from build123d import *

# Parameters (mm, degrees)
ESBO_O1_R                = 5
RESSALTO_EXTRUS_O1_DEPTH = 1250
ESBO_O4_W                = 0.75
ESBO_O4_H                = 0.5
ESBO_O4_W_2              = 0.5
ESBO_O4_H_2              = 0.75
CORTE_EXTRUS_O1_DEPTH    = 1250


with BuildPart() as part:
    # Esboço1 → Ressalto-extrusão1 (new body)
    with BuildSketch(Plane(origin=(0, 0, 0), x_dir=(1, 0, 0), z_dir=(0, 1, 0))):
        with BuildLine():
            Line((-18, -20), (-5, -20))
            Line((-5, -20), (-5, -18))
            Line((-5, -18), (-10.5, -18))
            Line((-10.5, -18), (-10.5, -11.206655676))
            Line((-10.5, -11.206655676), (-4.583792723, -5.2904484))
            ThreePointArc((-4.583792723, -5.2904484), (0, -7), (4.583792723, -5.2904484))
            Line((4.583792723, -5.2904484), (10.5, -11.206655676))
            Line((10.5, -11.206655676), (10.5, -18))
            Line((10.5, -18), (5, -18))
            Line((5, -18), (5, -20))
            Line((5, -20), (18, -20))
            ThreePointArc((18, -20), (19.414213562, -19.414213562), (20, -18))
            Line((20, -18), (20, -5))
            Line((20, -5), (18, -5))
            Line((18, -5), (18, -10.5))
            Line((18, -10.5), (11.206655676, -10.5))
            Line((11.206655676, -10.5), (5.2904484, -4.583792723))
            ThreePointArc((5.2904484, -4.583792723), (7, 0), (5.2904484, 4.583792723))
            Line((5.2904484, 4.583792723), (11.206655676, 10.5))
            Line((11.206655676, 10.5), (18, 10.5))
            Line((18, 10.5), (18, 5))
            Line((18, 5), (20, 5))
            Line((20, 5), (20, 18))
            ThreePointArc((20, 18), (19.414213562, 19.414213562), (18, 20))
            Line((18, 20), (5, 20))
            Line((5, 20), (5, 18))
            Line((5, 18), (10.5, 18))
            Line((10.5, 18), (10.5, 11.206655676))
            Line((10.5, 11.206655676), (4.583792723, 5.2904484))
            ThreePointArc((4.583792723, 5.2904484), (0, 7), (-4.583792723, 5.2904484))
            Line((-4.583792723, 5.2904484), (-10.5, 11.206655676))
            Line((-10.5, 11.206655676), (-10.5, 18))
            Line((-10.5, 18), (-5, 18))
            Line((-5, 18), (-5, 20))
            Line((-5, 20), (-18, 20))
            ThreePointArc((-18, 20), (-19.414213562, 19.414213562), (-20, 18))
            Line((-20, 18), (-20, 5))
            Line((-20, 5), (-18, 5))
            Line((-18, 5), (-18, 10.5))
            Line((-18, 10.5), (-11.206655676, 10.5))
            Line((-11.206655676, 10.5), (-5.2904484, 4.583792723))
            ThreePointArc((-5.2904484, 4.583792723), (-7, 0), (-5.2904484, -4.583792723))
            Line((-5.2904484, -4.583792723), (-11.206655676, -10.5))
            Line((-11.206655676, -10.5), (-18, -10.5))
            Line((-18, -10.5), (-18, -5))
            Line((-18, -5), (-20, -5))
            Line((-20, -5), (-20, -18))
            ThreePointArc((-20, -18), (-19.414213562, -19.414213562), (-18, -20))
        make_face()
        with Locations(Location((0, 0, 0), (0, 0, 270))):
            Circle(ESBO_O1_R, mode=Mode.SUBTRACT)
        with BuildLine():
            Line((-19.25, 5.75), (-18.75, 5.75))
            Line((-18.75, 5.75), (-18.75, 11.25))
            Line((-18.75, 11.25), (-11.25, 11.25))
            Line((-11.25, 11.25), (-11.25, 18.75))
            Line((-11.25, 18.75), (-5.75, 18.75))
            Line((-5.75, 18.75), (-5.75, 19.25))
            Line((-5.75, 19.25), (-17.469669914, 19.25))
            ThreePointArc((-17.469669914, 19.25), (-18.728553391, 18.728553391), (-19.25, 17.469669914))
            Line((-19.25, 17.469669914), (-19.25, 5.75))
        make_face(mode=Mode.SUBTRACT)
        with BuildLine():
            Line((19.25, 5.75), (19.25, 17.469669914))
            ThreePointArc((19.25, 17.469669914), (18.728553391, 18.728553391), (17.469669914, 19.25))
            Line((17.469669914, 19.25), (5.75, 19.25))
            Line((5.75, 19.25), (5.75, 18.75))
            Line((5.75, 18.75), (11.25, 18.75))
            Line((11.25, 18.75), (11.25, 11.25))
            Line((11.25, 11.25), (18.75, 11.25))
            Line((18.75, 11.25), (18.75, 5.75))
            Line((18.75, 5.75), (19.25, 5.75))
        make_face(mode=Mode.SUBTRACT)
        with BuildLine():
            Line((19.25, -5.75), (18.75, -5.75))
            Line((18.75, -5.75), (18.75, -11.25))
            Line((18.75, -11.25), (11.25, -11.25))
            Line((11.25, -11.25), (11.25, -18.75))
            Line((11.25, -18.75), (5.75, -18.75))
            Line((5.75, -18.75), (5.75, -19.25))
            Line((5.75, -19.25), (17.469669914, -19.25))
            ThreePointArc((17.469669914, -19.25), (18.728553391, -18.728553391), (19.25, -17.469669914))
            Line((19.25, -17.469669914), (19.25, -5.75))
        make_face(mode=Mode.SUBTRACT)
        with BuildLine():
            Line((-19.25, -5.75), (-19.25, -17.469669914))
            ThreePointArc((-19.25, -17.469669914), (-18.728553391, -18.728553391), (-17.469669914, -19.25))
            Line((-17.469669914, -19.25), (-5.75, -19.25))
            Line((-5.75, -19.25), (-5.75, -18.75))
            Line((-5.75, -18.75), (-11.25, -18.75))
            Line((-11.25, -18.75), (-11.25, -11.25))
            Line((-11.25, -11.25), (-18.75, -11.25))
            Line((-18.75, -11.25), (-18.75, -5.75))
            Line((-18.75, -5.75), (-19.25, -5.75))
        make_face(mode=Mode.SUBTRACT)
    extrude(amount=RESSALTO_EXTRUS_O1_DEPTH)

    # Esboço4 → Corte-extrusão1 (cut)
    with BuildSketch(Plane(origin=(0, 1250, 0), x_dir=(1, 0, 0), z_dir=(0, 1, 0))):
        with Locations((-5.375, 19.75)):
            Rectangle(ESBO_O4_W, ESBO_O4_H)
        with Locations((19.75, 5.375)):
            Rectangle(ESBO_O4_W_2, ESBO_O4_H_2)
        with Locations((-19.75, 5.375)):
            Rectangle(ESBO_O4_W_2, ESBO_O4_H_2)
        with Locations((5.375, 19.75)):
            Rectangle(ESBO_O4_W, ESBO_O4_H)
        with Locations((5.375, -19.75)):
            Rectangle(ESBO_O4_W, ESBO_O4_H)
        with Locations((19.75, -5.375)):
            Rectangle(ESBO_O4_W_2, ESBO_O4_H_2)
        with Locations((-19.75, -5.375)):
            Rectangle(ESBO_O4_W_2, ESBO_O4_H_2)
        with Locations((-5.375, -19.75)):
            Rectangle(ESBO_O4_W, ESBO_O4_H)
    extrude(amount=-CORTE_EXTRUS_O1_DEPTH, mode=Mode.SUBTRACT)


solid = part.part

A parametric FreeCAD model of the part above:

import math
import FreeCAD as App
import Part
import Sketcher
from FreeCAD import Vector

doc = App.newDocument("Part")
body = doc.addObject("PartDesign::Body", "Body")

sketch1 = body.newObject("Sketcher::SketchObject", "Sketch")
sketch1.AttachmentSupport = (doc.getObject("XZ_Plane"), [""])
sketch1.MapMode = "FlatFace"
sketch1.addGeometry(Part.LineSegment(Vector(-18, 20, 0), Vector(-5, 20, 0)), False)
sketch1.addGeometry(Part.LineSegment(Vector(-5, 20, 0), Vector(-5, 18, 0)), False)
sketch1.addGeometry(Part.LineSegment(Vector(-5, 18, 0), Vector(-10.5, 18, 0)), False)
sketch1.addGeometry(Part.LineSegment(Vector(-10.5, 18, 0), Vector(-10.5, 11.206656, 0)), False)
sketch1.addGeometry(Part.LineSegment(Vector(-10.5, 11.206656, 0), Vector(-4.583793, 5.290448, 0)), False)
sketch1.addGeometry(Part.ArcOfCircle(Part.Circle(Vector(0, 0, 0), Vector(0, 0, 1), 7), math.radians(49.093426), math.radians(130.906574)), False)
sketch1.addGeometry(Part.LineSegment(Vector(4.583793, 5.290448, 0), Vector(10.5, 11.206656, 0)), False)
sketch1.addGeometry(Part.LineSegment(Vector(10.5, 11.206656, 0), Vector(10.5, 18, 0)), False)
sketch1.addGeometry(Part.LineSegment(Vector(10.5, 18, 0), Vector(5, 18, 0)), False)
sketch1.addGeometry(Part.LineSegment(Vector(5, 18, 0), Vector(5, 20, 0)), False)
sketch1.addGeometry(Part.LineSegment(Vector(5, 20, 0), Vector(18, 20, 0)), False)
sketch1.addGeometry(Part.ArcOfCircle(Part.Circle(Vector(18, 18, 0), Vector(0, 0, 1), 2), math.radians(0), math.radians(90)), False)
sketch1.addGeometry(Part.LineSegment(Vector(20, 18, 0), Vector(20, 5, 0)), False)
sketch1.addGeometry(Part.LineSegment(Vector(20, 5, 0), Vector(18, 5, 0)), False)
sketch1.addGeometry(Part.LineSegment(Vector(18, 5, 0), Vector(18, 10.5, 0)), False)
sketch1.addGeometry(Part.LineSegment(Vector(18, 10.5, 0), Vector(11.206656, 10.5, 0)), False)
sketch1.addGeometry(Part.LineSegment(Vector(11.206656, 10.5, 0), Vector(5.290448, 4.583793, 0)), False)
sketch1.addGeometry(Part.ArcOfCircle(Part.Circle(Vector(0, 0, 0), Vector(0, 0, 1), 7), math.radians(-40.906574), math.radians(40.906574)), False)
sketch1.addGeometry(Part.LineSegment(Vector(5.290448, -4.583793, 0), Vector(11.206656, -10.5, 0)), False)
sketch1.addGeometry(Part.LineSegment(Vector(11.206656, -10.5, 0), Vector(18, -10.5, 0)), False)
sketch1.addGeometry(Part.LineSegment(Vector(18, -10.5, 0), Vector(18, -5, 0)), False)
sketch1.addGeometry(Part.LineSegment(Vector(18, -5, 0), Vector(20, -5, 0)), False)
sketch1.addGeometry(Part.LineSegment(Vector(20, -5, 0), Vector(20, -18, 0)), False)
sketch1.addGeometry(Part.ArcOfCircle(Part.Circle(Vector(18, -18, 0), Vector(0, 0, 1), 2), math.radians(-90), math.radians(0)), False)
sketch1.addGeometry(Part.LineSegment(Vector(18, -20, 0), Vector(5, -20, 0)), False)
sketch1.addGeometry(Part.LineSegment(Vector(5, -20, 0), Vector(5, -18, 0)), False)
sketch1.addGeometry(Part.LineSegment(Vector(5, -18, 0), Vector(10.5, -18, 0)), False)
sketch1.addGeometry(Part.LineSegment(Vector(10.5, -18, 0), Vector(10.5, -11.206656, 0)), False)
sketch1.addGeometry(Part.LineSegment(Vector(10.5, -11.206656, 0), Vector(4.583793, -5.290448, 0)), False)
sketch1.addGeometry(Part.ArcOfCircle(Part.Circle(Vector(0, 0, 0), Vector(0, 0, 1), 7), math.radians(-130.906574), math.radians(-49.093426)), False)
sketch1.addGeometry(Part.LineSegment(Vector(-4.583793, -5.290448, 0), Vector(-10.5, -11.206656, 0)), False)
sketch1.addGeometry(Part.LineSegment(Vector(-10.5, -11.206656, 0), Vector(-10.5, -18, 0)), False)
sketch1.addGeometry(Part.LineSegment(Vector(-10.5, -18, 0), Vector(-5, -18, 0)), False)
sketch1.addGeometry(Part.LineSegment(Vector(-5, -18, 0), Vector(-5, -20, 0)), False)
sketch1.addGeometry(Part.LineSegment(Vector(-5, -20, 0), Vector(-18, -20, 0)), False)
sketch1.addGeometry(Part.ArcOfCircle(Part.Circle(Vector(-18, -18, 0), Vector(0, 0, 1), 2), math.radians(-180), math.radians(-90)), False)
sketch1.addGeometry(Part.LineSegment(Vector(-20, -18, 0), Vector(-20, -5, 0)), False)
sketch1.addGeometry(Part.LineSegment(Vector(-20, -5, 0), Vector(-18, -5, 0)), False)
sketch1.addGeometry(Part.LineSegment(Vector(-18, -5, 0), Vector(-18, -10.5, 0)), False)
sketch1.addGeometry(Part.LineSegment(Vector(-18, -10.5, 0), Vector(-11.206656, -10.5, 0)), False)
sketch1.addGeometry(Part.LineSegment(Vector(-11.206656, -10.5, 0), Vector(-5.290448, -4.583793, 0)), False)
sketch1.addGeometry(Part.ArcOfCircle(Part.Circle(Vector(0, 0, 0), Vector(0, 0, 1), 7), math.radians(139.093426), math.radians(220.906574)), False)
sketch1.addGeometry(Part.LineSegment(Vector(-5.290448, 4.583793, 0), Vector(-11.206656, 10.5, 0)), False)
sketch1.addGeometry(Part.LineSegment(Vector(-11.206656, 10.5, 0), Vector(-18, 10.5, 0)), False)
sketch1.addGeometry(Part.LineSegment(Vector(-18, 10.5, 0), Vector(-18, 5, 0)), False)
sketch1.addGeometry(Part.LineSegment(Vector(-18, 5, 0), Vector(-20, 5, 0)), False)
sketch1.addGeometry(Part.LineSegment(Vector(-20, 5, 0), Vector(-20, 18, 0)), False)
sketch1.addGeometry(Part.ArcOfCircle(Part.Circle(Vector(-18, 18, 0), Vector(0, 0, 1), 2), math.radians(90), math.radians(180)), False)
sketch1.addGeometry(Part.LineSegment(Vector(-19.25, 17.46967, 0), Vector(-19.25, 5.75, 0)), False)
sketch1.addGeometry(Part.LineSegment(Vector(-19.25, 5.75, 0), Vector(-18.75, 5.75, 0)), False)
sketch1.addGeometry(Part.LineSegment(Vector(-18.75, 5.75, 0), Vector(-18.75, 11.25, 0)), False)
sketch1.addGeometry(Part.LineSegment(Vector(-18.75, 11.25, 0), Vector(-11.25, 11.25, 0)), False)
sketch1.addGeometry(Part.LineSegment(Vector(-11.25, 11.25, 0), Vector(-11.25, 18.75, 0)), False)
sketch1.addGeometry(Part.LineSegment(Vector(-11.25, 18.75, 0), Vector(-5.75, 18.75, 0)), False)
sketch1.addGeometry(Part.LineSegment(Vector(-5.75, 18.75, 0), Vector(-5.75, 19.25, 0)), False)
sketch1.addGeometry(Part.LineSegment(Vector(-5.75, 19.25, 0), Vector(-17.46967, 19.25, 0)), False)
sketch1.addGeometry(Part.ArcOfCircle(Part.Circle(Vector(-17.46967, 17.46967, 0), Vector(0, 0, 1), 1.78033), math.radians(90), math.radians(180)), False)
sketch1.addGeometry(Part.LineSegment(Vector(18.75, 5.75, 0), Vector(19.25, 5.75, 0)), False)
sketch1.addGeometry(Part.LineSegment(Vector(19.25, 5.75, 0), Vector(19.25, 17.46967, 0)), False)
sketch1.addGeometry(Part.ArcOfCircle(Part.Circle(Vector(17.46967, 17.46967, 0), Vector(0, 0, 1), 1.78033), math.radians(0), math.radians(90)), False)
sketch1.addGeometry(Part.LineSegment(Vector(17.46967, 19.25, 0), Vector(5.75, 19.25, 0)), False)
sketch1.addGeometry(Part.LineSegment(Vector(5.75, 19.25, 0), Vector(5.75, 18.75, 0)), False)
sketch1.addGeometry(Part.LineSegment(Vector(5.75, 18.75, 0), Vector(11.25, 18.75, 0)), False)
sketch1.addGeometry(Part.LineSegment(Vector(11.25, 18.75, 0), Vector(11.25, 11.25, 0)), False)
sketch1.addGeometry(Part.LineSegment(Vector(11.25, 11.25, 0), Vector(18.75, 11.25, 0)), False)
sketch1.addGeometry(Part.LineSegment(Vector(18.75, 11.25, 0), Vector(18.75, 5.75, 0)), False)
sketch1.addGeometry(Part.LineSegment(Vector(-18.75, -5.75, 0), Vector(-19.25, -5.75, 0)), False)
sketch1.addGeometry(Part.LineSegment(Vector(-19.25, -5.75, 0), Vector(-19.25, -17.46967, 0)), False)
sketch1.addGeometry(Part.ArcOfCircle(Part.Circle(Vector(-17.46967, -17.46967, 0), Vector(0, 0, 1), 1.78033), math.radians(180), math.radians(270)), False)
sketch1.addGeometry(Part.LineSegment(Vector(-17.46967, -19.25, 0), Vector(-5.75, -19.25, 0)), False)
sketch1.addGeometry(Part.LineSegment(Vector(-5.75, -19.25, 0), Vector(-5.75, -18.75, 0)), False)
sketch1.addGeometry(Part.LineSegment(Vector(-5.75, -18.75, 0), Vector(-11.25, -18.75, 0)), False)
sketch1.addGeometry(Part.LineSegment(Vector(-11.25, -18.75, 0), Vector(-11.25, -11.25, 0)), False)
sketch1.addGeometry(Part.LineSegment(Vector(-11.25, -11.25, 0), Vector(-18.75, -11.25, 0)), False)
sketch1.addGeometry(Part.LineSegment(Vector(-18.75, -11.25, 0), Vector(-18.75, -5.75, 0)), False)
sketch1.addGeometry(Part.Circle(Vector(0, 0, 0), Vector(0, 0, 1), 5), False)
sketch1.addGeometry(Part.LineSegment(Vector(19.25, -17.46967, 0), Vector(19.25, -5.75, 0)), False)
sketch1.addGeometry(Part.LineSegment(Vector(19.25, -5.75, 0), Vector(18.75, -5.75, 0)), False)
sketch1.addGeometry(Part.LineSegment(Vector(18.75, -5.75, 0), Vector(18.75, -11.25, 0)), False)
sketch1.addGeometry(Part.LineSegment(Vector(18.75, -11.25, 0), Vector(11.25, -11.25, 0)), False)
sketch1.addGeometry(Part.LineSegment(Vector(11.25, -11.25, 0), Vector(11.25, -18.75, 0)), False)
sketch1.addGeometry(Part.LineSegment(Vector(11.25, -18.75, 0), Vector(5.75, -18.75, 0)), False)
sketch1.addGeometry(Part.LineSegment(Vector(5.75, -18.75, 0), Vector(5.75, -19.25, 0)), False)
sketch1.addGeometry(Part.LineSegment(Vector(5.75, -19.25, 0), Vector(17.46967, -19.25, 0)), False)
sketch1.addGeometry(Part.ArcOfCircle(Part.Circle(Vector(17.46967, -17.46967, 0), Vector(0, 0, 1), 1.78033), math.radians(-90), math.radians(0)), False)
sketch1.addConstraint(Sketcher.Constraint("Coincident", 0, 2, 1, 1))
sketch1.addConstraint(Sketcher.Constraint("Coincident", 1, 2, 2, 1))
sketch1.addConstraint(Sketcher.Constraint("Coincident", 2, 2, 3, 1))
sketch1.addConstraint(Sketcher.Constraint("Coincident", 3, 2, 4, 1))
sketch1.addConstraint(Sketcher.Constraint("Coincident", 4, 2, 5, 2))
sketch1.addConstraint(Sketcher.Constraint("Coincident", 5, 1, 6, 1))
sketch1.addConstraint(Sketcher.Constraint("Coincident", 6, 2, 7, 1))
sketch1.addConstraint(Sketcher.Constraint("Coincident", 7, 2, 8, 1))
sketch1.addConstraint(Sketcher.Constraint("Coincident", 8, 2, 9, 1))
sketch1.addConstraint(Sketcher.Constraint("Coincident", 9, 2, 10, 1))
sketch1.addConstraint(Sketcher.Constraint("Tangent", 10, 2, 11, 2))
sketch1.addConstraint(Sketcher.Constraint("Tangent", 11, 1, 12, 1))
sketch1.addConstraint(Sketcher.Constraint("Coincident", 12, 2, 13, 1))
sketch1.addConstraint(Sketcher.Constraint("Coincident", 13, 2, 14, 1))
sketch1.addConstraint(Sketcher.Constraint("Coincident", 14, 2, 15, 1))
sketch1.addConstraint(Sketcher.Constraint("Coincident", 15, 2, 16, 1))
sketch1.addConstraint(Sketcher.Constraint("Coincident", 16, 2, 17, 2))
sketch1.addConstraint(Sketcher.Constraint("Coincident", 17, 1, 18, 1))
sketch1.addConstraint(Sketcher.Constraint("Coincident", 18, 2, 19, 1))
sketch1.addConstraint(Sketcher.Constraint("Coincident", 19, 2, 20, 1))
sketch1.addConstraint(Sketcher.Constraint("Coincident", 20, 2, 21, 1))
sketch1.addConstraint(Sketcher.Constraint("Coincident", 21, 2, 22, 1))
sketch1.addConstraint(Sketcher.Constraint("Tangent", 22, 2, 23, 2))
sketch1.addConstraint(Sketcher.Constraint("Tangent", 23, 1, 24, 1))
sketch1.addConstraint(Sketcher.Constraint("Coincident", 24, 2, 25, 1))
sketch1.addConstraint(Sketcher.Constraint("Coincident", 25, 2, 26, 1))
sketch1.addConstraint(Sketcher.Constraint("Coincident", 26, 2, 27, 1))
sketch1.addConstraint(Sketcher.Constraint("Coincident", 27, 2, 28, 1))
sketch1.addConstraint(Sketcher.Constraint("Coincident", 28, 2, 29, 2))
sketch1.addConstraint(Sketcher.Constraint("Coincident", 29, 1, 30, 1))
sketch1.addConstraint(Sketcher.Constraint("Coincident", 30, 2, 31, 1))
sketch1.addConstraint(Sketcher.Constraint("Coincident", 31, 2, 32, 1))
sketch1.addConstraint(Sketcher.Constraint("Coincident", 32, 2, 33, 1))
sketch1.addConstraint(Sketcher.Constraint("Coincident", 33, 2, 34, 1))
sketch1.addConstraint(Sketcher.Constraint("Tangent", 34, 2, 35, 2))
sketch1.addConstraint(Sketcher.Constraint("Tangent", 35, 1, 36, 1))
sketch1.addConstraint(Sketcher.Constraint("Coincident", 36, 2, 37, 1))
sketch1.addConstraint(Sketcher.Constraint("Coincident", 37, 2, 38, 1))
sketch1.addConstraint(Sketcher.Constraint("Coincident", 38, 2, 39, 1))
sketch1.addConstraint(Sketcher.Constraint("Coincident", 39, 2, 40, 1))
sketch1.addConstraint(Sketcher.Constraint("Coincident", 40, 2, 41, 2))
sketch1.addConstraint(Sketcher.Constraint("Coincident", 41, 1, 42, 1))
sketch1.addConstraint(Sketcher.Constraint("Coincident", 42, 2, 43, 1))
sketch1.addConstraint(Sketcher.Constraint("Coincident", 43, 2, 44, 1))
sketch1.addConstraint(Sketcher.Constraint("Coincident", 44, 2, 45, 1))
sketch1.addConstraint(Sketcher.Constraint("Coincident", 45, 2, 46, 1))
sketch1.addConstraint(Sketcher.Constraint("Tangent", 46, 2, 47, 2))
sketch1.addConstraint(Sketcher.Constraint("Tangent", 47, 1, 0, 1))
sketch1.addConstraint(Sketcher.Constraint("Coincident", 48, 2, 49, 1))
sketch1.addConstraint(Sketcher.Constraint("Coincident", 49, 2, 50, 1))
sketch1.addConstraint(Sketcher.Constraint("Coincident", 50, 2, 51, 1))
sketch1.addConstraint(Sketcher.Constraint("Coincident", 51, 2, 52, 1))
sketch1.addConstraint(Sketcher.Constraint("Coincident", 52, 2, 53, 1))
sketch1.addConstraint(Sketcher.Constraint("Coincident", 53, 2, 54, 1))
sketch1.addConstraint(Sketcher.Constraint("Coincident", 54, 2, 55, 1))
sketch1.addConstraint(Sketcher.Constraint("Tangent", 55, 2, 56, 1))
sketch1.addConstraint(Sketcher.Constraint("Tangent", 56, 2, 48, 1))
sketch1.addConstraint(Sketcher.Constraint("Coincident", 57, 2, 58, 1))
sketch1.addConstraint(Sketcher.Constraint("Tangent", 58, 2, 59, 1))
sketch1.addConstraint(Sketcher.Constraint("Tangent", 59, 2, 60, 1))
sketch1.addConstraint(Sketcher.Constraint("Coincident", 60, 2, 61, 1))
sketch1.addConstraint(Sketcher.Constraint("Coincident", 61, 2, 62, 1))
sketch1.addConstraint(Sketcher.Constraint("Coincident", 62, 2, 63, 1))
sketch1.addConstraint(Sketcher.Constraint("Coincident", 63, 2, 64, 1))
sketch1.addConstraint(Sketcher.Constraint("Coincident", 64, 2, 65, 1))
sketch1.addConstraint(Sketcher.Constraint("Coincident", 65, 2, 57, 1))
sketch1.addConstraint(Sketcher.Constraint("Coincident", 66, 2, 67, 1))
sketch1.addConstraint(Sketcher.Constraint("Tangent", 67, 2, 68, 1))
sketch1.addConstraint(Sketcher.Constraint("Tangent", 68, 2, 69, 1))
sketch1.addConstraint(Sketcher.Constraint("Coincident", 69, 2, 70, 1))
sketch1.addConstraint(Sketcher.Constraint("Coincident", 70, 2, 71, 1))
sketch1.addConstraint(Sketcher.Constraint("Coincident", 71, 2, 72, 1))
sketch1.addConstraint(Sketcher.Constraint("Coincident", 72, 2, 73, 1))
sketch1.addConstraint(Sketcher.Constraint("Coincident", 73, 2, 74, 1))
sketch1.addConstraint(Sketcher.Constraint("Coincident", 74, 2, 66, 1))
sketch1.addConstraint(Sketcher.Constraint("Coincident", 76, 2, 77, 1))
sketch1.addConstraint(Sketcher.Constraint("Coincident", 77, 2, 78, 1))
sketch1.addConstraint(Sketcher.Constraint("Coincident", 78, 2, 79, 1))
sketch1.addConstraint(Sketcher.Constraint("Coincident", 79, 2, 80, 1))
sketch1.addConstraint(Sketcher.Constraint("Coincident", 80, 2, 81, 1))
sketch1.addConstraint(Sketcher.Constraint("Coincident", 81, 2, 82, 1))
sketch1.addConstraint(Sketcher.Constraint("Coincident", 82, 2, 83, 1))
sketch1.addConstraint(Sketcher.Constraint("Tangent", 83, 2, 84, 1))
sketch1.addConstraint(Sketcher.Constraint("Tangent", 84, 2, 76, 1))
sketch1.addConstraint(Sketcher.Constraint("Horizontal", 0))
sketch1.addConstraint(Sketcher.Constraint("Vertical", 1))
sketch1.addConstraint(Sketcher.Constraint("Horizontal", 2))
sketch1.addConstraint(Sketcher.Constraint("Vertical", 3))
sketch1.addConstraint(Sketcher.Constraint("Vertical", 7))
sketch1.addConstraint(Sketcher.Constraint("Horizontal", 8))
sketch1.addConstraint(Sketcher.Constraint("Vertical", 9))
sketch1.addConstraint(Sketcher.Constraint("Horizontal", 10))
sketch1.addConstraint(Sketcher.Constraint("Vertical", 12))
sketch1.addConstraint(Sketcher.Constraint("Horizontal", 13))
sketch1.addConstraint(Sketcher.Constraint("Vertical", 14))
sketch1.addConstraint(Sketcher.Constraint("Horizontal", 15))
sketch1.addConstraint(Sketcher.Constraint("Horizontal", 19))
sketch1.addConstraint(Sketcher.Constraint("Vertical", 20))
sketch1.addConstraint(Sketcher.Constraint("Horizontal", 21))
sketch1.addConstraint(Sketcher.Constraint("Vertical", 22))
sketch1.addConstraint(Sketcher.Constraint("Horizontal", 24))
sketch1.addConstraint(Sketcher.Constraint("Vertical", 25))
sketch1.addConstraint(Sketcher.Constraint("Horizontal", 26))
sketch1.addConstraint(Sketcher.Constraint("Vertical", 27))
sketch1.addConstraint(Sketcher.Constraint("Vertical", 31))
sketch1.addConstraint(Sketcher.Constraint("Horizontal", 32))
sketch1.addConstraint(Sketcher.Constraint("Vertical", 33))
sketch1.addConstraint(Sketcher.Constraint("Horizontal", 34))
sketch1.addConstraint(Sketcher.Constraint("Vertical", 36))
sketch1.addConstraint(Sketcher.Constraint("Horizontal", 37))
sketch1.addConstraint(Sketcher.Constraint("Vertical", 38))
sketch1.addConstraint(Sketcher.Constraint("Horizontal", 39))
sketch1.addConstraint(Sketcher.Constraint("Horizontal", 43))
sketch1.addConstraint(Sketcher.Constraint("Vertical", 44))
sketch1.addConstraint(Sketcher.Constraint("Horizontal", 45))
sketch1.addConstraint(Sketcher.Constraint("Vertical", 46))
sketch1.addConstraint(Sketcher.Constraint("Vertical", 48))
sketch1.addConstraint(Sketcher.Constraint("Horizontal", 49))
sketch1.addConstraint(Sketcher.Constraint("Vertical", 50))
sketch1.addConstraint(Sketcher.Constraint("Horizontal", 51))
sketch1.addConstraint(Sketcher.Constraint("Vertical", 52))
sketch1.addConstraint(Sketcher.Constraint("Horizontal", 53))
sketch1.addConstraint(Sketcher.Constraint("Vertical", 54))
sketch1.addConstraint(Sketcher.Constraint("Horizontal", 55))
sketch1.addConstraint(Sketcher.Constraint("Horizontal", 57))
sketch1.addConstraint(Sketcher.Constraint("Vertical", 58))
sketch1.addConstraint(Sketcher.Constraint("Horizontal", 60))
sketch1.addConstraint(Sketcher.Constraint("Vertical", 61))
sketch1.addConstraint(Sketcher.Constraint("Horizontal", 62))
sketch1.addConstraint(Sketcher.Constraint("Vertical", 63))
sketch1.addConstraint(Sketcher.Constraint("Horizontal", 64))
sketch1.addConstraint(Sketcher.Constraint("Vertical", 65))
sketch1.addConstraint(Sketcher.Constraint("Horizontal", 66))
sketch1.addConstraint(Sketcher.Constraint("Vertical", 67))
sketch1.addConstraint(Sketcher.Constraint("Horizontal", 69))
sketch1.addConstraint(Sketcher.Constraint("Vertical", 70))
sketch1.addConstraint(Sketcher.Constraint("Horizontal", 71))
sketch1.addConstraint(Sketcher.Constraint("Vertical", 72))
sketch1.addConstraint(Sketcher.Constraint("Horizontal", 73))
sketch1.addConstraint(Sketcher.Constraint("Vertical", 74))
sketch1.addConstraint(Sketcher.Constraint("Vertical", 76))
sketch1.addConstraint(Sketcher.Constraint("Horizontal", 77))
sketch1.addConstraint(Sketcher.Constraint("Vertical", 78))
sketch1.addConstraint(Sketcher.Constraint("Horizontal", 79))
sketch1.addConstraint(Sketcher.Constraint("Vertical", 80))
sketch1.addConstraint(Sketcher.Constraint("Horizontal", 81))
sketch1.addConstraint(Sketcher.Constraint("Vertical", 82))
sketch1.addConstraint(Sketcher.Constraint("Horizontal", 83))
sketch1.addConstraint(Sketcher.Constraint("Coincident", 5, 3, -1, 1))
sketch1.addConstraint(Sketcher.Constraint("Coincident", 17, 3, -1, 1))
sketch1.addConstraint(Sketcher.Constraint("Coincident", 29, 3, -1, 1))
sketch1.addConstraint(Sketcher.Constraint("Coincident", 41, 3, -1, 1))
sketch1.addConstraint(Sketcher.Constraint("Coincident", 75, 3, -1, 1))
sketch1.addConstraint(Sketcher.Constraint("Equal", 5, 17))
sketch1.addConstraint(Sketcher.Constraint("Equal", 11, 23))
sketch1.addConstraint(Sketcher.Constraint("Equal", 17, 29))
sketch1.addConstraint(Sketcher.Constraint("Equal", 23, 35))
sketch1.addConstraint(Sketcher.Constraint("Equal", 29, 41))
sketch1.addConstraint(Sketcher.Constraint("Equal", 35, 47))
sketch1.addConstraint(Sketcher.Constraint("Equal", 56, 59))
sketch1.addConstraint(Sketcher.Constraint("Equal", 59, 68))
sketch1.addConstraint(Sketcher.Constraint("Equal", 68, 84))
sketch1.addConstraint(Sketcher.Constraint("Symmetric", 11, 3, 35, 3, -1, 1))
sketch1.addConstraint(Sketcher.Constraint("Symmetric", 23, 3, 47, 3, -1, 1))
sketch1.addConstraint(Sketcher.Constraint("Symmetric", 59, 3, 68, 3, -1, 1))
sketch1.addConstraint(Sketcher.Constraint("Symmetric", 56, 3, 84, 3, -1, 1))
sketch1.addConstraint(Sketcher.Constraint("Symmetric", 1, 2, 25, 2, -1, 1))
sketch1.addConstraint(Sketcher.Constraint("Symmetric", 3, 2, 27, 2, -1, 1))
sketch1.addConstraint(Sketcher.Constraint("Symmetric", 6, 2, 30, 2, -1, 1))
sketch1.addConstraint(Sketcher.Constraint("Symmetric", 8, 2, 32, 2, -1, 1))
sketch1.addConstraint(Sketcher.Constraint("Symmetric", 13, 2, 37, 2, -1, 1))
sketch1.addConstraint(Sketcher.Constraint("Symmetric", 15, 2, 39, 2, -1, 1))
sketch1.addConstraint(Sketcher.Constraint("Symmetric", 18, 2, 42, 2, -1, 1))
sketch1.addConstraint(Sketcher.Constraint("Symmetric", 20, 2, 44, 2, -1, 1))
sketch1.addConstraint(Sketcher.Constraint("Symmetric", 61, 2, 70, 2, -1, 1))
sketch1.addConstraint(Sketcher.Constraint("Symmetric", 63, 2, 72, 2, -1, 1))
sketch1.addConstraint(Sketcher.Constraint("Symmetric", 65, 2, 74, 2, -1, 1))
sketch1.addConstraint(Sketcher.Constraint("Symmetric", 49, 2, 77, 2, -1, 1))
sketch1.addConstraint(Sketcher.Constraint("Symmetric", 51, 2, 79, 2, -1, 1))
sketch1.addConstraint(Sketcher.Constraint("Symmetric", 53, 2, 81, 2, -1, 1))
sketch1.addConstraint(Sketcher.Constraint("Symmetric", 23, 3, 35, 3, -2))
sketch1.addConstraint(Sketcher.Constraint("Symmetric", 56, 3, 59, 3, -2))
sketch1.addConstraint(Sketcher.Constraint("Symmetric", 3, 2, 6, 2, -2))
sketch1.addConstraint(Sketcher.Constraint("Symmetric", 1, 2, 8, 2, -2))
sketch1.addConstraint(Sketcher.Constraint("Symmetric", 20, 2, 37, 2, -2))
sketch1.addConstraint(Sketcher.Constraint("Symmetric", 18, 2, 39, 2, -2))
sketch1.addConstraint(Sketcher.Constraint("Symmetric", 53, 2, 61, 2, -2))
sketch1.addConstraint(Sketcher.Constraint("Symmetric", 51, 2, 63, 2, -2))
sketch1.addConstraint(Sketcher.Constraint("Symmetric", 49, 2, 65, 2, -2))
sketch1.addConstraint(Sketcher.Constraint("Perpendicular", 4, 6))
sketch1.addConstraint(Sketcher.Constraint("Parallel", 6, 16))
sketch1.addConstraint(Sketcher.Constraint("Perpendicular", 16, 18))
sketch1.addConstraint(Sketcher.Constraint("Parallel", 18, 28))
sketch1.addConstraint(Sketcher.Constraint("Perpendicular", 28, 30))
sketch1.addConstraint(Sketcher.Constraint("Parallel", 30, 40))
sketch1.addConstraint(Sketcher.Constraint("Perpendicular", 40, 42))
sketch1.addConstraint(Sketcher.Constraint("Horizontal", 47, 3, 1, 2))
sketch1.addConstraint(Sketcher.Constraint("Horizontal", 4, 2, 5, 1))
sketch1.addConstraint(Sketcher.Constraint("Vertical", 10, 2, 13, 2))
sketch1.addConstraint(Sketcher.Constraint("Equal", 32, 53))
sketch1.addConstraint(Sketcher.Constraint("Equal", 43, 3))
sketch1.addConstraint(Sketcher.Constraint("Equal", 34, 12))
sketch1.addConstraint(Sketcher.Constraint("Equal", 81, 14))
sketch1.addConstraint(Sketcher.Constraint("Equal", 83, 48))
sketch1.addConstraint(Sketcher.Constraint("Equal", 44, 50))
sketch1.addConstraint(Sketcher.Constraint("Equal", 79, 52))
sketch1.addConstraint(Sketcher.Constraint("Equal", 6, 16))
sketch1.addConstraint(Sketcher.Constraint("Diameter", 75, 10.0))
sketch1.addConstraint(Sketcher.Constraint("Radius", 5, 7.0))
sketch1.addConstraint(Sketcher.Constraint("Radius", 11, 2.0))
sketch1.addConstraint(Sketcher.Constraint("DistanceX", 0, 1, 0, 2, 13.0))
sketch1.addConstraint(Sketcher.Constraint("DistanceX", 2, 2, 2, 1, 5.5))
sketch1.addConstraint(Sketcher.Constraint("DistanceX", 49, 1, 49, 2, 0.5))
sketch1.addConstraint(Sketcher.Constraint("DistanceX", 51, 1, 51, 2, 7.5))
sketch1.addConstraint(Sketcher.Constraint("DistanceX", -1, 1, 11, 3, 18.0))
sketch1.addConstraint(Sketcher.Constraint("DistanceX", 48, 2, -1, 1, 19.25))
sketch1.addConstraint(Sketcher.Constraint("DistanceY", -1, 1, 48, 2, 5.75))
sketch1.addConstraint(Sketcher.Constraint("Radius", 56, 1.78033))
sketch1.addConstraint(Sketcher.Constraint("Distance", 4, 8.366781))
pad1 = body.newObject("PartDesign::Pad", "Pad")
pad1.Profile = sketch1
pad1.Length = 1250
pad1.Reversed = True

sketch2 = body.newObject("Sketcher::SketchObject", "Sketch001")
sketch2.AttachmentSupport = (doc.getObject("XZ_Plane"), [""])
sketch2.MapMode = "FlatFace"
sketch2.AttachmentOffset = App.Placement(Vector(0, 0, -1250), App.Rotation())
sketch2.addGeometry(Part.LineSegment(Vector(-5.75, -20, 0), Vector(-5.75, -19.5, 0)), False)
sketch2.addGeometry(Part.LineSegment(Vector(-5.75, -19.5, 0), Vector(-5, -19.5, 0)), False)
sketch2.addGeometry(Part.LineSegment(Vector(-5, -19.5, 0), Vector(-5, -20, 0)), False)
sketch2.addGeometry(Part.LineSegment(Vector(-5, -20, 0), Vector(-5.75, -20, 0)), False)
sketch2.addGeometry(Part.LineSegment(Vector(19.5, -5.75, 0), Vector(19.5, -5, 0)), False)
sketch2.addGeometry(Part.LineSegment(Vector(19.5, -5, 0), Vector(20, -5, 0)), False)
sketch2.addGeometry(Part.LineSegment(Vector(20, -5, 0), Vector(20, -5.75, 0)), False)
sketch2.addGeometry(Part.LineSegment(Vector(20, -5.75, 0), Vector(19.5, -5.75, 0)), False)
sketch2.addGeometry(Part.LineSegment(Vector(-20, -5.75, 0), Vector(-20, -5, 0)), False)
sketch2.addGeometry(Part.LineSegment(Vector(-20, -5, 0), Vector(-19.5, -5, 0)), False)
sketch2.addGeometry(Part.LineSegment(Vector(-19.5, -5, 0), Vector(-19.5, -5.75, 0)), False)
sketch2.addGeometry(Part.LineSegment(Vector(-19.5, -5.75, 0), Vector(-20, -5.75, 0)), False)
sketch2.addGeometry(Part.LineSegment(Vector(5, -20, 0), Vector(5, -19.5, 0)), False)
sketch2.addGeometry(Part.LineSegment(Vector(5, -19.5, 0), Vector(5.75, -19.5, 0)), False)
sketch2.addGeometry(Part.LineSegment(Vector(5.75, -19.5, 0), Vector(5.75, -20, 0)), False)
sketch2.addGeometry(Part.LineSegment(Vector(5.75, -20, 0), Vector(5, -20, 0)), False)
sketch2.addGeometry(Part.LineSegment(Vector(5, 19.5, 0), Vector(5, 20, 0)), False)
sketch2.addGeometry(Part.LineSegment(Vector(5, 20, 0), Vector(5.75, 20, 0)), False)
sketch2.addGeometry(Part.LineSegment(Vector(5.75, 20, 0), Vector(5.75, 19.5, 0)), False)
sketch2.addGeometry(Part.LineSegment(Vector(5.75, 19.5, 0), Vector(5, 19.5, 0)), False)
sketch2.addGeometry(Part.LineSegment(Vector(19.5, 5, 0), Vector(19.5, 5.75, 0)), False)
sketch2.addGeometry(Part.LineSegment(Vector(19.5, 5.75, 0), Vector(20, 5.75, 0)), False)
sketch2.addGeometry(Part.LineSegment(Vector(20, 5.75, 0), Vector(20, 5, 0)), False)
sketch2.addGeometry(Part.LineSegment(Vector(20, 5, 0), Vector(19.5, 5, 0)), False)
sketch2.addGeometry(Part.LineSegment(Vector(-20, 5, 0), Vector(-20, 5.75, 0)), False)
sketch2.addGeometry(Part.LineSegment(Vector(-20, 5.75, 0), Vector(-19.5, 5.75, 0)), False)
sketch2.addGeometry(Part.LineSegment(Vector(-19.5, 5.75, 0), Vector(-19.5, 5, 0)), False)
sketch2.addGeometry(Part.LineSegment(Vector(-19.5, 5, 0), Vector(-20, 5, 0)), False)
sketch2.addGeometry(Part.LineSegment(Vector(-5.75, 19.5, 0), Vector(-5.75, 20, 0)), False)
sketch2.addGeometry(Part.LineSegment(Vector(-5.75, 20, 0), Vector(-5, 20, 0)), False)
sketch2.addGeometry(Part.LineSegment(Vector(-5, 20, 0), Vector(-5, 19.5, 0)), False)
sketch2.addGeometry(Part.LineSegment(Vector(-5, 19.5, 0), Vector(-5.75, 19.5, 0)), False)
sketch2.addConstraint(Sketcher.Constraint("Coincident", 0, 2, 1, 1))
sketch2.addConstraint(Sketcher.Constraint("Coincident", 1, 2, 2, 1))
sketch2.addConstraint(Sketcher.Constraint("Coincident", 2, 2, 3, 1))
sketch2.addConstraint(Sketcher.Constraint("Coincident", 3, 2, 0, 1))
sketch2.addConstraint(Sketcher.Constraint("Coincident", 4, 2, 5, 1))
sketch2.addConstraint(Sketcher.Constraint("Coincident", 5, 2, 6, 1))
sketch2.addConstraint(Sketcher.Constraint("Coincident", 6, 2, 7, 1))
sketch2.addConstraint(Sketcher.Constraint("Coincident", 7, 2, 4, 1))
sketch2.addConstraint(Sketcher.Constraint("Coincident", 8, 2, 9, 1))
sketch2.addConstraint(Sketcher.Constraint("Coincident", 9, 2, 10, 1))
sketch2.addConstraint(Sketcher.Constraint("Coincident", 10, 2, 11, 1))
sketch2.addConstraint(Sketcher.Constraint("Coincident", 11, 2, 8, 1))
sketch2.addConstraint(Sketcher.Constraint("Coincident", 12, 2, 13, 1))
sketch2.addConstraint(Sketcher.Constraint("Coincident", 13, 2, 14, 1))
sketch2.addConstraint(Sketcher.Constraint("Coincident", 14, 2, 15, 1))
sketch2.addConstraint(Sketcher.Constraint("Coincident", 15, 2, 12, 1))
sketch2.addConstraint(Sketcher.Constraint("Coincident", 16, 2, 17, 1))
sketch2.addConstraint(Sketcher.Constraint("Coincident", 17, 2, 18, 1))
sketch2.addConstraint(Sketcher.Constraint("Coincident", 18, 2, 19, 1))
sketch2.addConstraint(Sketcher.Constraint("Coincident", 19, 2, 16, 1))
sketch2.addConstraint(Sketcher.Constraint("Coincident", 20, 2, 21, 1))
sketch2.addConstraint(Sketcher.Constraint("Coincident", 21, 2, 22, 1))
sketch2.addConstraint(Sketcher.Constraint("Coincident", 22, 2, 23, 1))
sketch2.addConstraint(Sketcher.Constraint("Coincident", 23, 2, 20, 1))
sketch2.addConstraint(Sketcher.Constraint("Coincident", 24, 2, 25, 1))
sketch2.addConstraint(Sketcher.Constraint("Coincident", 25, 2, 26, 1))
sketch2.addConstraint(Sketcher.Constraint("Coincident", 26, 2, 27, 1))
sketch2.addConstraint(Sketcher.Constraint("Coincident", 27, 2, 24, 1))
sketch2.addConstraint(Sketcher.Constraint("Coincident", 28, 2, 29, 1))
sketch2.addConstraint(Sketcher.Constraint("Coincident", 29, 2, 30, 1))
sketch2.addConstraint(Sketcher.Constraint("Coincident", 30, 2, 31, 1))
sketch2.addConstraint(Sketcher.Constraint("Coincident", 31, 2, 28, 1))
sketch2.addConstraint(Sketcher.Constraint("Vertical", 0))
sketch2.addConstraint(Sketcher.Constraint("Horizontal", 1))
sketch2.addConstraint(Sketcher.Constraint("Vertical", 2))
sketch2.addConstraint(Sketcher.Constraint("Horizontal", 3))
sketch2.addConstraint(Sketcher.Constraint("Vertical", 4))
sketch2.addConstraint(Sketcher.Constraint("Horizontal", 5))
sketch2.addConstraint(Sketcher.Constraint("Vertical", 6))
sketch2.addConstraint(Sketcher.Constraint("Horizontal", 7))
sketch2.addConstraint(Sketcher.Constraint("Vertical", 8))
sketch2.addConstraint(Sketcher.Constraint("Horizontal", 9))
sketch2.addConstraint(Sketcher.Constraint("Vertical", 10))
sketch2.addConstraint(Sketcher.Constraint("Horizontal", 11))
sketch2.addConstraint(Sketcher.Constraint("Vertical", 12))
sketch2.addConstraint(Sketcher.Constraint("Horizontal", 13))
sketch2.addConstraint(Sketcher.Constraint("Vertical", 14))
sketch2.addConstraint(Sketcher.Constraint("Horizontal", 15))
sketch2.addConstraint(Sketcher.Constraint("Vertical", 16))
sketch2.addConstraint(Sketcher.Constraint("Horizontal", 17))
sketch2.addConstraint(Sketcher.Constraint("Vertical", 18))
sketch2.addConstraint(Sketcher.Constraint("Horizontal", 19))
sketch2.addConstraint(Sketcher.Constraint("Vertical", 20))
sketch2.addConstraint(Sketcher.Constraint("Horizontal", 21))
sketch2.addConstraint(Sketcher.Constraint("Vertical", 22))
sketch2.addConstraint(Sketcher.Constraint("Horizontal", 23))
sketch2.addConstraint(Sketcher.Constraint("Vertical", 24))
sketch2.addConstraint(Sketcher.Constraint("Horizontal", 25))
sketch2.addConstraint(Sketcher.Constraint("Vertical", 26))
sketch2.addConstraint(Sketcher.Constraint("Horizontal", 27))
sketch2.addConstraint(Sketcher.Constraint("Vertical", 28))
sketch2.addConstraint(Sketcher.Constraint("Horizontal", 29))
sketch2.addConstraint(Sketcher.Constraint("Vertical", 30))
sketch2.addConstraint(Sketcher.Constraint("Horizontal", 31))
sketch2.addConstraint(Sketcher.Constraint("Symmetric", 2, 2, 16, 2, -1, 1))
sketch2.addConstraint(Sketcher.Constraint("Symmetric", 0, 2, 18, 2, -1, 1))
sketch2.addConstraint(Sketcher.Constraint("Symmetric", 10, 2, 20, 2, -1, 1))
sketch2.addConstraint(Sketcher.Constraint("Symmetric", 8, 2, 22, 2, -1, 1))
sketch2.addConstraint(Sketcher.Constraint("Symmetric", 6, 2, 24, 2, -1, 1))
sketch2.addConstraint(Sketcher.Constraint("Symmetric", 4, 2, 26, 2, -1, 1))
sketch2.addConstraint(Sketcher.Constraint("Symmetric", 14, 2, 28, 2, -1, 1))
sketch2.addConstraint(Sketcher.Constraint("Symmetric", 12, 2, 30, 2, -1, 1))
sketch2.addConstraint(Sketcher.Constraint("Symmetric", 5, 2, 8, 2, -2))
sketch2.addConstraint(Sketcher.Constraint("Symmetric", 7, 2, 10, 2, -2))
sketch2.addConstraint(Sketcher.Constraint("Symmetric", 1, 2, 12, 2, -2))
sketch2.addConstraint(Sketcher.Constraint("Symmetric", 3, 2, 14, 2, -2))
sketch2.addConstraint(Sketcher.Constraint("Equal", 27, 0))
sketch2.addConstraint(Sketcher.Constraint("Equal", 31, 4))
sketch2.addConstraint(Sketcher.Constraint("DistanceX", 5, 1, 5, 2, 0.5))
sketch2.addConstraint(Sketcher.Constraint("DistanceX", 1, 2, -1, 1, 5.0))
sketch2.addConstraint(Sketcher.Constraint("DistanceY", 2, 2, -1, 1, 20.0))
sketch2.addConstraint(Sketcher.Constraint("DistanceY", 4, 2, -1, 1, 5.0))
sketch2.addConstraint(Sketcher.Constraint("DistanceX", -1, 1, 5, 2, 20.0))
sketch2.addConstraint(Sketcher.Constraint("DistanceX", 1, 1, 1, 2, 0.75))
pocket1 = body.newObject("PartDesign::Pocket", "Pocket")
pocket1.Profile = sketch2
pocket1.Length = 1250
pocket1.Reversed = True

doc.recompute()
